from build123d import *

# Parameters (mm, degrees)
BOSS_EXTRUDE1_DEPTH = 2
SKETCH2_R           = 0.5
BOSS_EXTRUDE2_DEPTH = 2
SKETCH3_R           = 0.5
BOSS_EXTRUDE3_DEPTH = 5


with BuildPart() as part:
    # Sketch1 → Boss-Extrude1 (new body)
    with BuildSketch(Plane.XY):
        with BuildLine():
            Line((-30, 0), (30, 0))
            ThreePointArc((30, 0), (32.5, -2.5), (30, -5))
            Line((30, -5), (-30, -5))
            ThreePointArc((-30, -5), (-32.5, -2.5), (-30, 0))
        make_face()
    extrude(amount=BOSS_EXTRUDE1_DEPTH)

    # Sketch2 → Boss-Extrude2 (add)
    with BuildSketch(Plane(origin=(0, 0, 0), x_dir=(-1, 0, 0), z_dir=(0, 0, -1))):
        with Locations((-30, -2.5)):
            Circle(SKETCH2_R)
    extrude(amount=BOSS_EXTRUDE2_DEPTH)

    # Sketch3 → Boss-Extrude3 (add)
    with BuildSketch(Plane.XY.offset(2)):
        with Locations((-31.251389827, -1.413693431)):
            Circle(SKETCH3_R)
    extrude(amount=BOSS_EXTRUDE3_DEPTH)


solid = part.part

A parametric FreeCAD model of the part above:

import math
import FreeCAD as App
import Part
import Sketcher
Q = App.Units.Quantity

doc = App.newDocument("Part")
body = doc.addObject("PartDesign::Body", "Body")

# Sketch on XY plane
sketch1 = doc.addObject("Sketcher::SketchObject", "Sketch")
body.addObject(sketch1)
sketch1.AttachmentSupport = (doc.XY_Plane, [""])
sketch1.MapMode = "FlatFace"
sketch1.addGeometry([
    Part.LineSegment(App.Vector(30, 0, 0), App.Vector(-30, 0, 0)),
    Part.ArcOfCircle(Part.Circle(App.Vector(-30, -2.5, 0), App.Vector(0, 0, 1), 2.5), math.radians(90), math.radians(270)),
    Part.LineSegment(App.Vector(-30, -5, 0), App.Vector(30, -5, 0)),
    Part.ArcOfCircle(Part.Circle(App.Vector(30, -2.5, 0), App.Vector(0, 0, 1), 2.5), math.radians(-90), math.radians(90)),
], False)
sketch1.addConstraint([
    Sketcher.Constraint("Tangent", 0, 2, 1, 1),
    Sketcher.Constraint("Tangent", 1, 2, 2, 1),
    Sketcher.Constraint("Tangent", 2, 2, 3, 1),
    Sketcher.Constraint("Tangent", 3, 2, 0, 1),
    Sketcher.Constraint("Horizontal", 0),
    Sketcher.Constraint("Horizontal", 2),
    Sketcher.Constraint("Symmetric", 0, 2, 3, 2, -1, 1),
    Sketcher.Constraint("Radius", 1, Q("2.5 mm")),
    Sketcher.Constraint("DistanceX", 0, 2, 0, 1, Q("60 mm")),
])
pad1 = doc.addObject("PartDesign::Pad", "Pad")
body.addObject(pad1)
pad1.Profile = sketch1
pad1.Length = 2

# Sketch on XY plane
sketch2 = doc.addObject("Sketcher::SketchObject", "Sketch001")
body.addObject(sketch2)
sketch2.AttachmentSupport = (doc.XY_Plane, [""])
sketch2.MapMode = "FlatFace"
sketch2.addGeometry(Part.Circle(App.Vector(30, -2.5, 0), App.Vector(0, 0, 1), 0.5), False)
sketch2.addConstraint([
    Sketcher.Constraint("Diameter", 0, Q("1 mm")),
    Sketcher.Constraint("DistanceX", -1, 1, 0, 3, Q("30 mm")),
    Sketcher.Constraint("DistanceY", 0, 3, -1, 1, Q("2.5 mm")),
])
pad2 = doc.addObject("PartDesign::Pad", "Pad001")
body.addObject(pad2)
pad2.Profile = sketch2
pad2.Length = 2
pad2.Reversed = True

# Sketch on XY plane
sketch3 = doc.addObject("Sketcher::SketchObject", "Sketch002")
body.addObject(sketch3)
sketch3.AttachmentSupport = (doc.XY_Plane, [""])
sketch3.MapMode = "FlatFace"
sketch3.AttachmentOffset = App.Placement(App.Vector(0, 0, 2), App.Rotation())
sketch3.addGeometry(Part.Circle(App.Vector(-31.3, -1.4, 0), App.Vector(0, 0, 1), 0.5), False)
sketch3.addConstraint([
    Sketcher.Constraint("Diameter", 0, Q("1 mm")),
    Sketcher.Constraint("DistanceX", 0, 3, -1, 1, Q("31.25139 mm")),
    Sketcher.Constraint("DistanceY", 0, 3, -1, 1, Q("1.413693 mm")),
])
pad3 = doc.addObject("PartDesign::Pad", "Pad002")
body.addObject(pad3)
pad3.Profile = sketch3
pad3.Length = 5

doc.recompute()
